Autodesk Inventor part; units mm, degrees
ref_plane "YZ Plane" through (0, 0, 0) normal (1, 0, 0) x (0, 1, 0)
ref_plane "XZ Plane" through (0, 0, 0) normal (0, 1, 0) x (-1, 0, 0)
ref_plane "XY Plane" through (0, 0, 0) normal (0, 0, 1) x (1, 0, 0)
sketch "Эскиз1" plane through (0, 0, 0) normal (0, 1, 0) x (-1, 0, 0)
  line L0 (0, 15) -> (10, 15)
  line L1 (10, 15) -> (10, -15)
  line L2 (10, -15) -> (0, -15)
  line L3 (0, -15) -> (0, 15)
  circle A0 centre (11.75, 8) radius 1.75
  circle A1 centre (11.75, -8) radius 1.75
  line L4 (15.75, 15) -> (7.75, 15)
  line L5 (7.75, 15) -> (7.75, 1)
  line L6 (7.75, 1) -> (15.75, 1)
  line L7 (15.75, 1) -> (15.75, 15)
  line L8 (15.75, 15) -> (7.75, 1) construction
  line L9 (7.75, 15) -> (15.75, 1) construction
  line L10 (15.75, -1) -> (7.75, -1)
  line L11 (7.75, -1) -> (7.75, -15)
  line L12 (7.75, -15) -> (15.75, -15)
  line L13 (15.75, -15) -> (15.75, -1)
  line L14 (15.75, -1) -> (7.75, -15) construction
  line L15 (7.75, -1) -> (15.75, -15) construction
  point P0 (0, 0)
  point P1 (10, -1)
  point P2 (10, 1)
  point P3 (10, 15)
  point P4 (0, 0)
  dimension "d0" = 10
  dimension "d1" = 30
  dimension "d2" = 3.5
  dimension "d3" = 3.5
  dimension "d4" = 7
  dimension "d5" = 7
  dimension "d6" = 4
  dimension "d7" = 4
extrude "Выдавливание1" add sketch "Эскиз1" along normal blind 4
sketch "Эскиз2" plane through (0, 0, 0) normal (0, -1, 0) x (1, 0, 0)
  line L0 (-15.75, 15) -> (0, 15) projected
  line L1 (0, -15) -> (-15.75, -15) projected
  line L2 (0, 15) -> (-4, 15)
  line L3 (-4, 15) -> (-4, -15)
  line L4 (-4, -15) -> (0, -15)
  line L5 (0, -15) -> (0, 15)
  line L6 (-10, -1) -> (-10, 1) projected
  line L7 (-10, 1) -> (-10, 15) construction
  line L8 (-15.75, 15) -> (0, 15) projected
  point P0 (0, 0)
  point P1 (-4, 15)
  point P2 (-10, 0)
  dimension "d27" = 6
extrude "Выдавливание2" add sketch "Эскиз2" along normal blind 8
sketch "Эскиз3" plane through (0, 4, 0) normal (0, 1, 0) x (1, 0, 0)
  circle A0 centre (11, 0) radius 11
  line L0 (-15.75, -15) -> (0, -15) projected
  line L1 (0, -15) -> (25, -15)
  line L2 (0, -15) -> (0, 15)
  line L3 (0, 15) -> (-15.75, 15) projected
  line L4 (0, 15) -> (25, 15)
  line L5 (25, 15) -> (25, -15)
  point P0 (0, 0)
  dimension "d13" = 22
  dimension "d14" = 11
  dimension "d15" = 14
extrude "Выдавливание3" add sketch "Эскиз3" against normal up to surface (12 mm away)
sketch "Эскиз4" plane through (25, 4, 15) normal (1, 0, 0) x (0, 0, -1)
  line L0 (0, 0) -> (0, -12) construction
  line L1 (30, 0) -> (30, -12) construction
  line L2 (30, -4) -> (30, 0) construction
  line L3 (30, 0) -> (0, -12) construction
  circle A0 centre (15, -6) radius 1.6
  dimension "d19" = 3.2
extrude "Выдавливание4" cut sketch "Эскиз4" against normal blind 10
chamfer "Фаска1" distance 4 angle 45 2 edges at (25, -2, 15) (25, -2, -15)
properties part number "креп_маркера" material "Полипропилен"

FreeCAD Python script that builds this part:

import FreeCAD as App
import Part
import Sketcher
from FreeCAD import Vector


def edges_at(feature, points):
    """Names of the edges that pass closest to the given points."""
    edges = feature.Shape.Edges
    near = lambda p: min(range(len(edges)), key=lambda i: edges[i].distToShape(Part.Vertex(*p))[0])
    return sorted({f"Edge{near(p) + 1}" for p in points})


def add_polygon(sketch, points):
    """Adds a closed chain of lines whose ends are joined by coincident constraints."""
    first, n = sketch.GeometryCount, len(points)
    for a, b in zip(points, points[1:] + points[:1]):
        sketch.addGeometry(Part.LineSegment(App.Vector(*a, 0), App.Vector(*b, 0)), False)
    for i in range(n):
        sketch.addConstraint(Sketcher.Constraint("Coincident", first + i, 2, first + (i + 1) % n, 1))

doc = App.newDocument("Part")
body = doc.addObject("PartDesign::Body", "Body")

sketch1 = doc.addObject("Sketcher::SketchObject", "Sketch")
body.addObject(sketch1)
sketch1.AttachmentSupport = (doc.XZ_Plane, [""])
sketch1.MapMode = "FlatFace"
add_polygon(sketch1, [(0, 15), (0, -15), (-15.8, -15), (-15.8, -1), (-10, -1), (-10, 1), (-15.8, 1), (-15.8, 15)])
sketch1.addGeometry(Part.Circle(Vector(-11.8, 8, 0), Vector(0, 0, 1), 1.8), False)
sketch1.addGeometry(Part.Circle(Vector(-11.8, -8, 0), Vector(0, 0, 1), 1.8), False)
sketch1.addConstraint([
    Sketcher.Constraint("Vertical", 0),
    Sketcher.Constraint("Horizontal", 1),
    Sketcher.Constraint("Vertical", 2),
    Sketcher.Constraint("Horizontal", 3),
    Sketcher.Constraint("Vertical", 4),
    Sketcher.Constraint("Horizontal", 5),
    Sketcher.Constraint("Vertical", 6),
    Sketcher.Constraint("Horizontal", 7),
    Sketcher.Constraint("Equal", 8, 9),
    Sketcher.Constraint("Symmetric", 0, 2, 7, 2, -1, 1),
    Sketcher.Constraint("Symmetric", 8, 3, 9, 3, -1),
    Sketcher.Constraint("Symmetric", 2, 2, 5, 2, -1),
    Sketcher.Constraint("Diameter", 8, 3.5),
    Sketcher.Constraint("DistanceY", 0, 2, 0, 1, 30.0),
    Sketcher.Constraint("DistanceX", 3, 2, -1, 1, 10.0),
    Sketcher.Constraint("DistanceY", 0, 2, 9, 3, 7.0),
    Sketcher.Constraint("DistanceX", 1, 2, 9, 3, 4.0),
    Sketcher.Constraint("DistanceY", 9, 3, 2, 2, 7.0),
    Sketcher.Constraint("DistanceX", 1, 2, 1, 1, 15.75),
])
pad1 = doc.addObject("PartDesign::Pad", "Pad")
body.addObject(pad1)
pad1.Profile = sketch1
pad1.Length = 4
pad1.Reversed = True

sketch2 = doc.addObject("Sketcher::SketchObject", "Sketch001")
body.addObject(sketch2)
sketch2.AttachmentSupport = (doc.XZ_Plane, [""])
sketch2.MapMode = "FlatFace"
add_polygon(sketch2, [(0, 15), (-4, 15), (-4, -15), (0, -15)])
sketch2.addConstraint([
    Sketcher.Constraint("Horizontal", 0),
    Sketcher.Constraint("Vertical", 1),
    Sketcher.Constraint("Horizontal", 2),
    Sketcher.Constraint("Vertical", 3),
    Sketcher.Constraint("Symmetric", 2, 2, 3, 2, -1, 1),
    Sketcher.Constraint("DistanceX", 0, 2, 0, 1, 4.0),
    Sketcher.Constraint("DistanceY", 1, 2, 1, 1, 30.0),
])
pad2 = doc.addObject("PartDesign::Pad", "Pad001")
body.addObject(pad2)
pad2.Profile = sketch2
pad2.Length = 8

sketch3 = doc.addObject("Sketcher::SketchObject", "Sketch002")
body.addObject(sketch3)
sketch3.AttachmentSupport = (doc.XZ_Plane, [""])
sketch3.MapMode = "FlatFace"
sketch3.AttachmentOffset = App.Placement(Vector(0, 0, -4), App.Rotation())
add_polygon(sketch3, [(0, -15), (0, 0), (0, 15), (25, 15), (25, -15)])
sketch3.addGeometry(Part.Circle(Vector(11, 0, 0), Vector(0, 0, 1), 11), False)
sketch3.addConstraint([
    Sketcher.Constraint("Vertical", 0),
    Sketcher.Constraint("Vertical", 1),
    Sketcher.Constraint("Horizontal", 2),
    Sketcher.Constraint("Vertical", 3),
    Sketcher.Constraint("Horizontal", 4),
    Sketcher.Constraint("Coincident", 0, 2, -1, 1),
    Sketcher.Constraint("PointOnObject", 5, 3, -1),
    Sketcher.Constraint("Equal", 0, 1),
    Sketcher.Constraint("Diameter", 5, 22.0),
    Sketcher.Constraint("DistanceX", -1, 1, 5, 3, 11.0),
    Sketcher.Constraint("DistanceX", 5, 3, 2, 2, 14.0),
    Sketcher.Constraint("DistanceY", 0, 1, 0, 2, 15.0),
])
pad3 = doc.addObject("PartDesign::Pad", "Pad002")
body.addObject(pad3)
pad3.Profile = sketch3
pad3.Length = 12

sketch4 = doc.addObject("Sketcher::SketchObject", "Sketch003")
body.addObject(sketch4)
sketch4.AttachmentSupport = (doc.YZ_Plane, [""])
sketch4.MapMode = "FlatFace"
sketch4.AttachmentOffset = App.Placement(Vector(0, 0, 25), App.Rotation())
sketch4.addGeometry(Part.Circle(Vector(-2, 0, 0), Vector(0, 0, 1), 1.6), False)
sketch4.addConstraint([
    Sketcher.Constraint("PointOnObject", 0, 3, -1),
    Sketcher.Constraint("Diameter", 0, 3.2),
    Sketcher.Constraint("DistanceX", 0, 3, -1, 1, 2.0),
])
pocket1 = doc.addObject("PartDesign::Pocket", "Pocket")
body.addObject(pocket1)
pocket1.Profile = sketch4
pocket1.Length = 10
doc.recompute()

chamfer = doc.addObject("PartDesign::Chamfer", "Chamfer")
body.addObject(chamfer)
chamfer.Base = (pocket1, edges_at(pocket1, [(25, -2, 15), (25, -2, -15)]))
chamfer.Size = 4

doc.recompute()
